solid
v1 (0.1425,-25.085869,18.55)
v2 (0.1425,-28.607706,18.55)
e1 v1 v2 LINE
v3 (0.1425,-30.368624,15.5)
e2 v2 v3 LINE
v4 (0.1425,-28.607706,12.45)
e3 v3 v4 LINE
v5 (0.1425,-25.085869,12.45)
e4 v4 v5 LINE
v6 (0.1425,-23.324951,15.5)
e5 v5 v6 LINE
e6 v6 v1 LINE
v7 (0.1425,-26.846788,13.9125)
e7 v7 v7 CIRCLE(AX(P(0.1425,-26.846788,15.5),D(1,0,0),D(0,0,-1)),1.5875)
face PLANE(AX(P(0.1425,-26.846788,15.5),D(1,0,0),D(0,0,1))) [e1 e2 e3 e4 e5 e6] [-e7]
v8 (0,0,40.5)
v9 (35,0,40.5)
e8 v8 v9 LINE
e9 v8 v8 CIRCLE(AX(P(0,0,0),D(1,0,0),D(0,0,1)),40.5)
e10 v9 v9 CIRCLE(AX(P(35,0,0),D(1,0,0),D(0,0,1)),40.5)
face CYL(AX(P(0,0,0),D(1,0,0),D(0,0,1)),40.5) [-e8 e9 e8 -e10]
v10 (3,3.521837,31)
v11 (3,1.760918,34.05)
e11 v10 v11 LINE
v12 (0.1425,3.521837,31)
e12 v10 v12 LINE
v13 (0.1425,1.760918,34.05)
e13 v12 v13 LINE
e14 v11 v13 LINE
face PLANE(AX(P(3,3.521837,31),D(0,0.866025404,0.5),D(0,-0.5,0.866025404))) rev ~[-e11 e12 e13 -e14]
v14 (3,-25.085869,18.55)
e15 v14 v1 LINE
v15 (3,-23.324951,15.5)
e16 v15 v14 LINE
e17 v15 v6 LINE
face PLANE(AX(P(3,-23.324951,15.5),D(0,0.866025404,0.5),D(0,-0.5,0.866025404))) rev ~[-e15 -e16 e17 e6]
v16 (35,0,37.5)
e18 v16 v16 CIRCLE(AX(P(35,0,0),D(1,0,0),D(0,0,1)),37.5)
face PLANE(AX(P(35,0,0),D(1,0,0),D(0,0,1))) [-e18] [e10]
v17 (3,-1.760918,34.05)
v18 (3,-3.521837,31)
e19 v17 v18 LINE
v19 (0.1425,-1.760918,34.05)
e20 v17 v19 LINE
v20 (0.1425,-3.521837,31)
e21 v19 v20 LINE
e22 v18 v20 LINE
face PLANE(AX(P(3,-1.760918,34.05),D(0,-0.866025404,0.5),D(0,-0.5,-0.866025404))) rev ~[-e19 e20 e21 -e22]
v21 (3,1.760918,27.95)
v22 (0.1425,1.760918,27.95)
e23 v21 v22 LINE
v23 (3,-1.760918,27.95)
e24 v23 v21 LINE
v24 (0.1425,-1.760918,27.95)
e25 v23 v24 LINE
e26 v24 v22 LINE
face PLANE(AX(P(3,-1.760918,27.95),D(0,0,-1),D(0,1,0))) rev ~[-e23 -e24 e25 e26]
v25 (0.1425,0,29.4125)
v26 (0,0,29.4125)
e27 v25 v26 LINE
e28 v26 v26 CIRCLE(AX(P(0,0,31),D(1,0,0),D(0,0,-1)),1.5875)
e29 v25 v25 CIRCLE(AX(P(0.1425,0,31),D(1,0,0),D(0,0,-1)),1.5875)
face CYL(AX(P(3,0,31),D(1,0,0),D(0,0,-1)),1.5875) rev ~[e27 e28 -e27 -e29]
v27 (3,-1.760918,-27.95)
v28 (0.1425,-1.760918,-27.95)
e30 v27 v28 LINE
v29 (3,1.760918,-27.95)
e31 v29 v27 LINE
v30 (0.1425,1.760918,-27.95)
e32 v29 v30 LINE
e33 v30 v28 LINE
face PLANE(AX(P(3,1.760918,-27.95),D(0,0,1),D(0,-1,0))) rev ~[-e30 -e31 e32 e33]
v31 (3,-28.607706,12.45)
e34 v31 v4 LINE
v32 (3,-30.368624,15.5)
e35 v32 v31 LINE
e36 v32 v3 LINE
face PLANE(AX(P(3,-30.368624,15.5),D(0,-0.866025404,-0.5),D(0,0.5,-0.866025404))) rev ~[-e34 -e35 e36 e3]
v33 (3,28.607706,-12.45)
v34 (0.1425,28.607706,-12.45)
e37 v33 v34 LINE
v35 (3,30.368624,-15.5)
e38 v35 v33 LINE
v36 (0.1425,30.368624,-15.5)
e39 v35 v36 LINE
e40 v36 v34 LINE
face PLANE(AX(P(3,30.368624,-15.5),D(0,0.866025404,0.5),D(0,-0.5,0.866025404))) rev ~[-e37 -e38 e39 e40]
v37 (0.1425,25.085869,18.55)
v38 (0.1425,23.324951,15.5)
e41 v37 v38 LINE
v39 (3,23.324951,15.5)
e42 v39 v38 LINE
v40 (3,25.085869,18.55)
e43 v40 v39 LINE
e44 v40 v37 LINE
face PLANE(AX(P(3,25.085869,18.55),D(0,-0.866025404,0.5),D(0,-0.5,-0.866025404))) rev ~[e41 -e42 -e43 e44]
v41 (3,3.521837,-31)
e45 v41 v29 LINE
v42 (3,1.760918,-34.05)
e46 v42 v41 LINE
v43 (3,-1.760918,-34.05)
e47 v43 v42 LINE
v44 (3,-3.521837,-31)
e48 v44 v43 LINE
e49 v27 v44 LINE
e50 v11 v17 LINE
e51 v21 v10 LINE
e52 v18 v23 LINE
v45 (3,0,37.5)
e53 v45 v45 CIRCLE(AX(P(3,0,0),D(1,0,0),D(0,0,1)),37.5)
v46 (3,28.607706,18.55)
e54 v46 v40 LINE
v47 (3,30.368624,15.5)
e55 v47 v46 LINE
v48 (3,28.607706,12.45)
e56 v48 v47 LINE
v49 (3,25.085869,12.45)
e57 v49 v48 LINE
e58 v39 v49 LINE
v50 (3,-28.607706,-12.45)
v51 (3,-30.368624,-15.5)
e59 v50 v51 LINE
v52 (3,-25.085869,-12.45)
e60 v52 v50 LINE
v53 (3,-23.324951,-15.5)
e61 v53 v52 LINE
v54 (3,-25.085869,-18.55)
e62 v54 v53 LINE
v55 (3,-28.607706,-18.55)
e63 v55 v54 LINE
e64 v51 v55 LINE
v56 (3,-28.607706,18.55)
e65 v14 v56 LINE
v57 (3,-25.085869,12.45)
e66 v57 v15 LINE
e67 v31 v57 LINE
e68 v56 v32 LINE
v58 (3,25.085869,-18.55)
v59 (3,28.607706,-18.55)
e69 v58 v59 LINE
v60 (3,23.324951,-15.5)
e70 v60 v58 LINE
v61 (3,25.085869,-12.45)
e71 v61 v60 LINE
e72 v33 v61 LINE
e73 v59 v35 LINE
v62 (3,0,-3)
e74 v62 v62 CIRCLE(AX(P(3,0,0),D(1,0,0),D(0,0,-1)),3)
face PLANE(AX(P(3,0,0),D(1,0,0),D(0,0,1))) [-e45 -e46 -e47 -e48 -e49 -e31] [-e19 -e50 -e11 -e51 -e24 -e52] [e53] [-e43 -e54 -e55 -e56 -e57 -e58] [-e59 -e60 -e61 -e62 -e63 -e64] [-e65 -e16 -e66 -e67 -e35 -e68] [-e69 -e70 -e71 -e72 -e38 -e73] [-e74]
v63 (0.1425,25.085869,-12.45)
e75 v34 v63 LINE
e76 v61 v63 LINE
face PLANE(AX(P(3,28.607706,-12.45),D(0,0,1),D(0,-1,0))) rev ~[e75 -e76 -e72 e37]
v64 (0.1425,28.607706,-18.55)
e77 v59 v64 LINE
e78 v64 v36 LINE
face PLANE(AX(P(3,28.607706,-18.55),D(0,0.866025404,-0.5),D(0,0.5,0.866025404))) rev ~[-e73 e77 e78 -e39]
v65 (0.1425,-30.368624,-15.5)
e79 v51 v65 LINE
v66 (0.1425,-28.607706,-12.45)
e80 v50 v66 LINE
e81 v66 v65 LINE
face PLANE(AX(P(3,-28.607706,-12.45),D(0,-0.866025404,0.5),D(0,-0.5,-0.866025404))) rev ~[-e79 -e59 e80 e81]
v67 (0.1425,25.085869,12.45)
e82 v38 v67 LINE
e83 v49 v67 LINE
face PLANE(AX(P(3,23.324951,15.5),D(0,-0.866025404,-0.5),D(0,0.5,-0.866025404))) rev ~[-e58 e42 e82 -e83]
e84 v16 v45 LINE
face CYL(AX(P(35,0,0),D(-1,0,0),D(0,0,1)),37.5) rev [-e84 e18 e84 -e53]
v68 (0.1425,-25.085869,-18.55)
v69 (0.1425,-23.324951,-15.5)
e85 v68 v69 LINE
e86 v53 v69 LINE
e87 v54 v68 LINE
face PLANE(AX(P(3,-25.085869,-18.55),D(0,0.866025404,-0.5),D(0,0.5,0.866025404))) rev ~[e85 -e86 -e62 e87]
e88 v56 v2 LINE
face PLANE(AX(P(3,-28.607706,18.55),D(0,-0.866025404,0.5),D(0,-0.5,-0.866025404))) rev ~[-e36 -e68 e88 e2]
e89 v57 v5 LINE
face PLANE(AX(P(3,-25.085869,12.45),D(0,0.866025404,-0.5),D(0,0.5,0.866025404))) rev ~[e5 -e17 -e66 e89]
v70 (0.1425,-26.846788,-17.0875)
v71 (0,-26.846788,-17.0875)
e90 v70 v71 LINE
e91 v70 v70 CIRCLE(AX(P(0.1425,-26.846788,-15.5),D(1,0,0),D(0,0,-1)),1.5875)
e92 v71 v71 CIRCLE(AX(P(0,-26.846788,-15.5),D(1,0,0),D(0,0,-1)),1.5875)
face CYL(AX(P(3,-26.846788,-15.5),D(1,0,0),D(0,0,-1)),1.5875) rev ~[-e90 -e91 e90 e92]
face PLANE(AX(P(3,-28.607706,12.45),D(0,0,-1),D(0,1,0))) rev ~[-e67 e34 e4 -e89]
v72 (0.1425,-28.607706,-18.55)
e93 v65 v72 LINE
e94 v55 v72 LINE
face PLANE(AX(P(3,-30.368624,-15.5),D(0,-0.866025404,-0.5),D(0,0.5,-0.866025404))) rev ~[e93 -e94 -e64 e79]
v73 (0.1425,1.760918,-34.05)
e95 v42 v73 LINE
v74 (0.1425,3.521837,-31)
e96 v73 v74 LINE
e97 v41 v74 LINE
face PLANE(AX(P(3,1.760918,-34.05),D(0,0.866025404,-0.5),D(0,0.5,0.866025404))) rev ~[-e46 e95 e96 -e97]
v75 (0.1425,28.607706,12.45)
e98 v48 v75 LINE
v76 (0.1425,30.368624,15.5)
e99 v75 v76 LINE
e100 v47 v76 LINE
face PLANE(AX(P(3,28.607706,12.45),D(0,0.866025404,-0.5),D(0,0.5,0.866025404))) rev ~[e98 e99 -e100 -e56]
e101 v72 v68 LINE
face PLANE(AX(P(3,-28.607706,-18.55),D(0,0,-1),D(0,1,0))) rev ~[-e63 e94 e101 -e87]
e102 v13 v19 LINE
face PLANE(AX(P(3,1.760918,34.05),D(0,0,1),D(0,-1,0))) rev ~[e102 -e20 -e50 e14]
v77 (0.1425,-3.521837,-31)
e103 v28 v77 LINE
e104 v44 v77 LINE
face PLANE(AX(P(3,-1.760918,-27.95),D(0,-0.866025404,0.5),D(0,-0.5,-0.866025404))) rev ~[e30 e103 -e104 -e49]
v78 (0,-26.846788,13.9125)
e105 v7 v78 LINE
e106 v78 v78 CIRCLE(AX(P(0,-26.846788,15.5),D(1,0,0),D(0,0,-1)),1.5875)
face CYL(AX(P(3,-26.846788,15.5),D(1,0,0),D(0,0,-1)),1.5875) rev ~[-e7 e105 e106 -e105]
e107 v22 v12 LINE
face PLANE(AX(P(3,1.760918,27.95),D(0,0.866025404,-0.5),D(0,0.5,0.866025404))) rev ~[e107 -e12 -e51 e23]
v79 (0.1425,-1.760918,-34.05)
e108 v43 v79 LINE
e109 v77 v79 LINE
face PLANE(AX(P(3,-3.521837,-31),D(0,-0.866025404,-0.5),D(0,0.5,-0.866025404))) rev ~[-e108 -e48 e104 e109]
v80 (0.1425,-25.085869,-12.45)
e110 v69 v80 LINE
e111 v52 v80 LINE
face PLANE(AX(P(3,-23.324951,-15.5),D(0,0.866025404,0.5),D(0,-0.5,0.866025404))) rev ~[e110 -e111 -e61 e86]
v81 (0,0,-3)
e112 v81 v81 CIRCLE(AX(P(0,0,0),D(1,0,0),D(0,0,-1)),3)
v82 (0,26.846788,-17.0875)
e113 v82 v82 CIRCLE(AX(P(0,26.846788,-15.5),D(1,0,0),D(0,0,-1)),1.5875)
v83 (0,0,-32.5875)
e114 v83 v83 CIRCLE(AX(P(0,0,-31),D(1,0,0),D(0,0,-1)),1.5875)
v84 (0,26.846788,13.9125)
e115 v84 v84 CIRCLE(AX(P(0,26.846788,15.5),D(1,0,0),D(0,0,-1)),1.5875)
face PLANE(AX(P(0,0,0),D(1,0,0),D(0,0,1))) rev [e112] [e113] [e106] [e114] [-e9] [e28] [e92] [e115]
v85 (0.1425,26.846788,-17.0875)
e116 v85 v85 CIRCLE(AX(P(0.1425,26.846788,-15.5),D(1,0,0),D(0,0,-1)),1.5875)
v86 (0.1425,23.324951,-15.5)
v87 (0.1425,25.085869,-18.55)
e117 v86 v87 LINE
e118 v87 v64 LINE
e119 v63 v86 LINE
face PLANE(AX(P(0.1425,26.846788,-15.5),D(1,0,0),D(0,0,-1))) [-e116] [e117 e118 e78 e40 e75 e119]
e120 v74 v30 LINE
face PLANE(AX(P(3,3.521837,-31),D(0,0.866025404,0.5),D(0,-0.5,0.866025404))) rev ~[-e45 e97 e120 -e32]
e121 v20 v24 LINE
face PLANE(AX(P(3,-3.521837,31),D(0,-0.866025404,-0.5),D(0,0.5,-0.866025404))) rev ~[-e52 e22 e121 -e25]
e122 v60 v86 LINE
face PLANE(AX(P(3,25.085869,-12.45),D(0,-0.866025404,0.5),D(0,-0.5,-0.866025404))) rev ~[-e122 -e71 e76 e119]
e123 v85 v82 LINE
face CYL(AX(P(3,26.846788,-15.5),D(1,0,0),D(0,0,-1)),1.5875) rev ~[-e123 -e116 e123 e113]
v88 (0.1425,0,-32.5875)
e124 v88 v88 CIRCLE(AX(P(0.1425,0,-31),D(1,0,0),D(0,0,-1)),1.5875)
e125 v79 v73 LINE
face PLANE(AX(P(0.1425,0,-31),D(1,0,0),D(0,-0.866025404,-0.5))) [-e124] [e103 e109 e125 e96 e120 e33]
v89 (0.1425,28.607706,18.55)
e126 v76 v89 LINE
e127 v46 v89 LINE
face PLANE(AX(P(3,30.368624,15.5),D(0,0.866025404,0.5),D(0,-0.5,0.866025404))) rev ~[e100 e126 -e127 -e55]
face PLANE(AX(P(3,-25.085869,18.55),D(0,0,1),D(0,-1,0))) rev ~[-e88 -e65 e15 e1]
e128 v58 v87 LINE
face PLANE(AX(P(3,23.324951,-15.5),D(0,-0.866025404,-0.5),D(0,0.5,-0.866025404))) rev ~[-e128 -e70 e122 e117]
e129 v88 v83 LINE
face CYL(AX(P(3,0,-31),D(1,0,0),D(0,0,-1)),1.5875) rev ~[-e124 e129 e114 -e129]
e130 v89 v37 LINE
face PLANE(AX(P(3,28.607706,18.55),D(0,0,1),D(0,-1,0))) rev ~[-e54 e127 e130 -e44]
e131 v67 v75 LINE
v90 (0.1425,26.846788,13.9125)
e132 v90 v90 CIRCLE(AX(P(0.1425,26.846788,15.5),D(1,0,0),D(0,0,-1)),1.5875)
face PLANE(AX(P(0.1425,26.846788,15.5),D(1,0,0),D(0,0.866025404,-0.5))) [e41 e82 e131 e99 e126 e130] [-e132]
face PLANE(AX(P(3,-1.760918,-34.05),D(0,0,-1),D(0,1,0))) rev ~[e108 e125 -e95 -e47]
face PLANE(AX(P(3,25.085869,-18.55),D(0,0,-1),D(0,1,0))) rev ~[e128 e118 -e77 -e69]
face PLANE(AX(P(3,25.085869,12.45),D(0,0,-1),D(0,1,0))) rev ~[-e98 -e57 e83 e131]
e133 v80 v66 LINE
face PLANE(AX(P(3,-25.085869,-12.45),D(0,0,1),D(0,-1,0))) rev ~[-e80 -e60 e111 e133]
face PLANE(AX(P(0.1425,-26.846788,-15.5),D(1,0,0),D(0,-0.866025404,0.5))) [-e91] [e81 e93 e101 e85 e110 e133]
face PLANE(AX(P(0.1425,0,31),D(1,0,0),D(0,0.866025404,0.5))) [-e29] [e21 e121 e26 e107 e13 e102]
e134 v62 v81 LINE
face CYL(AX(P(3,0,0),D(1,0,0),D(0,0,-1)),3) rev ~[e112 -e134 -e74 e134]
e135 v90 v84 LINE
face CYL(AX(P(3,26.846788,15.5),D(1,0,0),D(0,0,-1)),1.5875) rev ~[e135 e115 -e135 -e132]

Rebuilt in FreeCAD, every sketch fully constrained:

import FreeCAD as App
import Part
import Sketcher
Q = App.Units.Quantity

doc = App.newDocument("Part")
body = doc.addObject("PartDesign::Body", "Body")

# Sketch on XY plane
sketch1 = body.newObject("Sketcher::SketchObject", "Sketch")
sketch1.AttachmentSupport = (doc.getObject("XY_Plane"), [""])
sketch1.MapMode = "FlatFace"
sketch1.addGeometry([
    Part.LineSegment(App.Vector(0, 40.5, 0), App.Vector(0, 0, 0)),  # 0
    Part.LineSegment(App.Vector(0, 0, 0), App.Vector(3, 0, 0)),  # 1
    Part.LineSegment(App.Vector(3, 0, 0), App.Vector(3, 37.5, 0)),  # 2
    Part.LineSegment(App.Vector(3, 37.5, 0), App.Vector(35, 37.5, 0)),  # 3
    Part.LineSegment(App.Vector(35, 37.5, 0), App.Vector(35, 40.5, 0)),  # 4
    Part.LineSegment(App.Vector(35, 40.5, 0), App.Vector(0, 40.5, 0)),  # 5
], False)
sketch1.addConstraint([
    Sketcher.Constraint("Coincident", 0, 2, 1, 1),
    Sketcher.Constraint("Coincident", 1, 2, 2, 1),
    Sketcher.Constraint("Coincident", 2, 2, 3, 1),
    Sketcher.Constraint("Coincident", 3, 2, 4, 1),
    Sketcher.Constraint("Coincident", 4, 2, 5, 1),
    Sketcher.Constraint("Coincident", 5, 2, 0, 1),
    Sketcher.Constraint("Vertical", 0),
    Sketcher.Constraint("Horizontal", 1),
    Sketcher.Constraint("Vertical", 2),
    Sketcher.Constraint("Horizontal", 3),
    Sketcher.Constraint("Vertical", 4),
    Sketcher.Constraint("Horizontal", 5),
    Sketcher.Constraint("Coincident", 0, 2, -1, 1),
    Sketcher.Constraint("Equal", 1, 4),
    Sketcher.Constraint("DistanceX", 1, 1, 1, 2, Q("3 mm")),
    Sketcher.Constraint("DistanceX", 3, 1, 3, 2, Q("32 mm")),
    Sketcher.Constraint("DistanceY", 0, 2, 0, 1, Q("40.5 mm")),
])
revolution = body.newObject("PartDesign::Revolution", "Revolution")
revolution.Profile = sketch1
revolution.ReferenceAxis = (sketch1, ["H_Axis"])
revolution.Angle = 360

# Sketch on YZ plane
sketch2 = body.newObject("Sketcher::SketchObject", "Sketch001")
sketch2.AttachmentSupport = (doc.getObject("YZ_Plane"), [""])
sketch2.MapMode = "FlatFace"
sketch2.AttachmentOffset = App.Placement(App.Vector(0, 0, 3), App.Rotation())
sketch2.addGeometry(Part.Circle(App.Vector(0, 31, 0), App.Vector(0, 0, 1), 1.6), False)
sketch2.addConstraint([
    Sketcher.Constraint("PointOnObject", 0, 3, -2),
    Sketcher.Constraint("Diameter", 0, Q("3.175 mm")),
    Sketcher.Constraint("DistanceY", -1, 1, 0, 3, Q("31 mm")),
])
pocket1 = body.newObject("PartDesign::Pocket", "Pocket")
pocket1.Profile = sketch2
pocket1.Type = "UpToFirst"

# Sketch on YZ plane
sketch3 = body.newObject("Sketcher::SketchObject", "Sketch002")
sketch3.AttachmentSupport = (doc.getObject("YZ_Plane"), [""])
sketch3.MapMode = "FlatFace"
sketch3.AttachmentOffset = App.Placement(App.Vector(0, 0, 3), App.Rotation())
sketch3.addGeometry(Part.Circle(App.Vector(26.8, 15.5, 0), App.Vector(0, 0, 1), 1.6), False)
sketch3.addConstraint([
    Sketcher.Constraint("Diameter", 0, Q("3.175 mm")),
    Sketcher.Constraint("DistanceY", -1, 1, 0, 3, Q("15.5 mm")),
    Sketcher.Constraint("DistanceX", -1, 1, 0, 3, Q("26.846788 mm")),
])
pocket2 = body.newObject("PartDesign::Pocket", "Pocket001")
pocket2.Profile = sketch3
pocket2.Type = "UpToFirst"

# Sketch on YZ plane
sketch4 = body.newObject("Sketcher::SketchObject", "Sketch003")
sketch4.AttachmentSupport = (doc.getObject("YZ_Plane"), [""])
sketch4.MapMode = "FlatFace"
sketch4.AttachmentOffset = App.Placement(App.Vector(0, 0, 3), App.Rotation())
sketch4.addGeometry(Part.Circle(App.Vector(26.8, -15.5, 0), App.Vector(0, 0, 1), 1.6), False)
sketch4.addConstraint([
    Sketcher.Constraint("Diameter", 0, Q("3.175 mm")),
    Sketcher.Constraint("DistanceY", 0, 3, -1, 1, Q("15.5 mm")),
    Sketcher.Constraint("DistanceX", -1, 1, 0, 3, Q("26.846788 mm")),
])
pocket3 = body.newObject("PartDesign::Pocket", "Pocket002")
pocket3.Profile = sketch4
pocket3.Type = "UpToFirst"

# Sketch on YZ plane
sketch5 = body.newObject("Sketcher::SketchObject", "Sketch004")
sketch5.AttachmentSupport = (doc.getObject("YZ_Plane"), [""])
sketch5.MapMode = "FlatFace"
sketch5.AttachmentOffset = App.Placement(App.Vector(0, 0, 3), App.Rotation())
sketch5.addGeometry(Part.Circle(App.Vector(0, -31, 0), App.Vector(0, 0, 1), 1.6), False)
sketch5.addConstraint([
    Sketcher.Constraint("PointOnObject", 0, 3, -2),
    Sketcher.Constraint("Diameter", 0, Q("3.175 mm")),
    Sketcher.Constraint("DistanceY", 0, 3, -1, 1, Q("31 mm")),
])
pocket4 = body.newObject("PartDesign::Pocket", "Pocket003")
pocket4.Profile = sketch5
pocket4.Type = "UpToFirst"

# Sketch on YZ plane
sketch6 = body.newObject("Sketcher::SketchObject", "Sketch005")
sketch6.AttachmentSupport = (doc.getObject("YZ_Plane"), [""])
sketch6.MapMode = "FlatFace"
sketch6.AttachmentOffset = App.Placement(App.Vector(0, 0, 3), App.Rotation())
sketch6.addGeometry(Part.Circle(App.Vector(-26.8, -15.5, 0), App.Vector(0, 0, 1), 1.6), False)
sketch6.addConstraint([
    Sketcher.Constraint("Diameter", 0, Q("3.175 mm")),
    Sketcher.Constraint("DistanceY", 0, 3, -1, 1, Q("15.5 mm")),
    Sketcher.Constraint("DistanceX", 0, 3, -1, 1, Q("26.846788 mm")),
])
pocket5 = body.newObject("PartDesign::Pocket", "Pocket004")
pocket5.Profile = sketch6
pocket5.Type = "UpToFirst"

# Sketch on YZ plane
sketch7 = body.newObject("Sketcher::SketchObject", "Sketch006")
sketch7.AttachmentSupport = (doc.getObject("YZ_Plane"), [""])
sketch7.MapMode = "FlatFace"
sketch7.AttachmentOffset = App.Placement(App.Vector(0, 0, 3), App.Rotation())
sketch7.addGeometry(Part.Circle(App.Vector(-26.8, 15.5, 0), App.Vector(0, 0, 1), 1.6), False)
sketch7.addConstraint([
    Sketcher.Constraint("Diameter", 0, Q("3.175 mm")),
    Sketcher.Constraint("DistanceY", -1, 1, 0, 3, Q("15.5 mm")),
    Sketcher.Constraint("DistanceX", 0, 3, -1, 1, Q("26.846788 mm")),
])
pocket6 = body.newObject("PartDesign::Pocket", "Pocket005")
pocket6.Profile = sketch7
pocket6.Type = "UpToFirst"

# Sketch on YZ plane
sketch8 = body.newObject("Sketcher::SketchObject", "Sketch007")
sketch8.AttachmentSupport = (doc.getObject("YZ_Plane"), [""])
sketch8.MapMode = "FlatFace"
sketch8.AttachmentOffset = App.Placement(App.Vector(0, 0, 3), App.Rotation())
sketch8.addGeometry([
    Part.LineSegment(App.Vector(25.1, -18.6, 0), App.Vector(28.6, -18.6, 0)),  # 0
    Part.LineSegment(App.Vector(28.6, -18.6, 0), App.Vector(30.4, -15.5, 0)),  # 1
    Part.LineSegment(App.Vector(30.4, -15.5, 0), App.Vector(28.6, -12.4, 0)),  # 2
    Part.LineSegment(App.Vector(28.6, -12.4, 0), App.Vector(25.1, -12.4, 0)),  # 3
    Part.LineSegment(App.Vector(25.1, -12.4, 0), App.Vector(23.3, -15.5, 0)),  # 4
    Part.LineSegment(App.Vector(23.3, -15.5, 0), App.Vector(25.1, -18.6, 0)),  # 5
], False)
sketch8.addConstraint([
    Sketcher.Constraint("Coincident", 0, 2, 1, 1),
    Sketcher.Constraint("Coincident", 1, 2, 2, 1),
    Sketcher.Constraint("Coincident", 2, 2, 3, 1),
    Sketcher.Constraint("Coincident", 3, 2, 4, 1),
    Sketcher.Constraint("Coincident", 4, 2, 5, 1),
    Sketcher.Constraint("Coincident", 5, 2, 0, 1),
    Sketcher.Constraint("Horizontal", 0),
    Sketcher.Constraint("Horizontal", 3),
    Sketcher.Constraint("Parallel", 1, 4),
    Sketcher.Constraint("Parallel", 2, 5),
    Sketcher.Constraint("Horizontal", 1, 2, 4, 2),
    Sketcher.Constraint("Vertical", 0, 2, 2, 2),
    Sketcher.Constraint("Vertical", 3, 2, 5, 2),
    Sketcher.Constraint("Angle", 1, Q("60 deg")),
    Sketcher.Constraint("DistanceY", 1, 2, -1, 1, Q("15.5 mm")),
    Sketcher.Constraint("DistanceY", 0, 2, 2, 2, Q("6.1 mm")),
    Sketcher.Constraint("DistanceX", 0, 1, 0, 2, Q("3.521837 mm")),
    Sketcher.Constraint("DistanceX", -1, 1, 3, 2, Q("25.085869 mm")),
])
pocket7 = body.newObject("PartDesign::Pocket", "Pocket006")
pocket7.Profile = sketch8
pocket7.Length = 2.8575
doc.recompute()

polarpattern = body.newObject("PartDesign::PolarPattern", "PolarPattern")
polarpattern.Originals = [pocket7]
polarpattern.Axis = (doc.getObject("X_Axis"), [""])
polarpattern.Angle = 360
polarpattern.Occurrences = 6
body.Tip = polarpattern

# Sketch on YZ plane
sketch9 = body.newObject("Sketcher::SketchObject", "Sketch008")
sketch9.AttachmentSupport = (doc.getObject("YZ_Plane"), [""])
sketch9.MapMode = "FlatFace"
sketch9.AttachmentOffset = App.Placement(App.Vector(0, 0, 3), App.Rotation())
sketch9.addGeometry(Part.Circle(App.Vector(0, 0, 0), App.Vector(0, 0, 1), 3), False)
sketch9.addConstraint([
    Sketcher.Constraint("Coincident", 0, 3, -1, 1),
    Sketcher.Constraint("Diameter", 0, Q("6 mm")),
])
pocket8 = body.newObject("PartDesign::Pocket", "Pocket007")
pocket8.Profile = sketch9
pocket8.Type = "UpToFirst"

doc.recompute()
